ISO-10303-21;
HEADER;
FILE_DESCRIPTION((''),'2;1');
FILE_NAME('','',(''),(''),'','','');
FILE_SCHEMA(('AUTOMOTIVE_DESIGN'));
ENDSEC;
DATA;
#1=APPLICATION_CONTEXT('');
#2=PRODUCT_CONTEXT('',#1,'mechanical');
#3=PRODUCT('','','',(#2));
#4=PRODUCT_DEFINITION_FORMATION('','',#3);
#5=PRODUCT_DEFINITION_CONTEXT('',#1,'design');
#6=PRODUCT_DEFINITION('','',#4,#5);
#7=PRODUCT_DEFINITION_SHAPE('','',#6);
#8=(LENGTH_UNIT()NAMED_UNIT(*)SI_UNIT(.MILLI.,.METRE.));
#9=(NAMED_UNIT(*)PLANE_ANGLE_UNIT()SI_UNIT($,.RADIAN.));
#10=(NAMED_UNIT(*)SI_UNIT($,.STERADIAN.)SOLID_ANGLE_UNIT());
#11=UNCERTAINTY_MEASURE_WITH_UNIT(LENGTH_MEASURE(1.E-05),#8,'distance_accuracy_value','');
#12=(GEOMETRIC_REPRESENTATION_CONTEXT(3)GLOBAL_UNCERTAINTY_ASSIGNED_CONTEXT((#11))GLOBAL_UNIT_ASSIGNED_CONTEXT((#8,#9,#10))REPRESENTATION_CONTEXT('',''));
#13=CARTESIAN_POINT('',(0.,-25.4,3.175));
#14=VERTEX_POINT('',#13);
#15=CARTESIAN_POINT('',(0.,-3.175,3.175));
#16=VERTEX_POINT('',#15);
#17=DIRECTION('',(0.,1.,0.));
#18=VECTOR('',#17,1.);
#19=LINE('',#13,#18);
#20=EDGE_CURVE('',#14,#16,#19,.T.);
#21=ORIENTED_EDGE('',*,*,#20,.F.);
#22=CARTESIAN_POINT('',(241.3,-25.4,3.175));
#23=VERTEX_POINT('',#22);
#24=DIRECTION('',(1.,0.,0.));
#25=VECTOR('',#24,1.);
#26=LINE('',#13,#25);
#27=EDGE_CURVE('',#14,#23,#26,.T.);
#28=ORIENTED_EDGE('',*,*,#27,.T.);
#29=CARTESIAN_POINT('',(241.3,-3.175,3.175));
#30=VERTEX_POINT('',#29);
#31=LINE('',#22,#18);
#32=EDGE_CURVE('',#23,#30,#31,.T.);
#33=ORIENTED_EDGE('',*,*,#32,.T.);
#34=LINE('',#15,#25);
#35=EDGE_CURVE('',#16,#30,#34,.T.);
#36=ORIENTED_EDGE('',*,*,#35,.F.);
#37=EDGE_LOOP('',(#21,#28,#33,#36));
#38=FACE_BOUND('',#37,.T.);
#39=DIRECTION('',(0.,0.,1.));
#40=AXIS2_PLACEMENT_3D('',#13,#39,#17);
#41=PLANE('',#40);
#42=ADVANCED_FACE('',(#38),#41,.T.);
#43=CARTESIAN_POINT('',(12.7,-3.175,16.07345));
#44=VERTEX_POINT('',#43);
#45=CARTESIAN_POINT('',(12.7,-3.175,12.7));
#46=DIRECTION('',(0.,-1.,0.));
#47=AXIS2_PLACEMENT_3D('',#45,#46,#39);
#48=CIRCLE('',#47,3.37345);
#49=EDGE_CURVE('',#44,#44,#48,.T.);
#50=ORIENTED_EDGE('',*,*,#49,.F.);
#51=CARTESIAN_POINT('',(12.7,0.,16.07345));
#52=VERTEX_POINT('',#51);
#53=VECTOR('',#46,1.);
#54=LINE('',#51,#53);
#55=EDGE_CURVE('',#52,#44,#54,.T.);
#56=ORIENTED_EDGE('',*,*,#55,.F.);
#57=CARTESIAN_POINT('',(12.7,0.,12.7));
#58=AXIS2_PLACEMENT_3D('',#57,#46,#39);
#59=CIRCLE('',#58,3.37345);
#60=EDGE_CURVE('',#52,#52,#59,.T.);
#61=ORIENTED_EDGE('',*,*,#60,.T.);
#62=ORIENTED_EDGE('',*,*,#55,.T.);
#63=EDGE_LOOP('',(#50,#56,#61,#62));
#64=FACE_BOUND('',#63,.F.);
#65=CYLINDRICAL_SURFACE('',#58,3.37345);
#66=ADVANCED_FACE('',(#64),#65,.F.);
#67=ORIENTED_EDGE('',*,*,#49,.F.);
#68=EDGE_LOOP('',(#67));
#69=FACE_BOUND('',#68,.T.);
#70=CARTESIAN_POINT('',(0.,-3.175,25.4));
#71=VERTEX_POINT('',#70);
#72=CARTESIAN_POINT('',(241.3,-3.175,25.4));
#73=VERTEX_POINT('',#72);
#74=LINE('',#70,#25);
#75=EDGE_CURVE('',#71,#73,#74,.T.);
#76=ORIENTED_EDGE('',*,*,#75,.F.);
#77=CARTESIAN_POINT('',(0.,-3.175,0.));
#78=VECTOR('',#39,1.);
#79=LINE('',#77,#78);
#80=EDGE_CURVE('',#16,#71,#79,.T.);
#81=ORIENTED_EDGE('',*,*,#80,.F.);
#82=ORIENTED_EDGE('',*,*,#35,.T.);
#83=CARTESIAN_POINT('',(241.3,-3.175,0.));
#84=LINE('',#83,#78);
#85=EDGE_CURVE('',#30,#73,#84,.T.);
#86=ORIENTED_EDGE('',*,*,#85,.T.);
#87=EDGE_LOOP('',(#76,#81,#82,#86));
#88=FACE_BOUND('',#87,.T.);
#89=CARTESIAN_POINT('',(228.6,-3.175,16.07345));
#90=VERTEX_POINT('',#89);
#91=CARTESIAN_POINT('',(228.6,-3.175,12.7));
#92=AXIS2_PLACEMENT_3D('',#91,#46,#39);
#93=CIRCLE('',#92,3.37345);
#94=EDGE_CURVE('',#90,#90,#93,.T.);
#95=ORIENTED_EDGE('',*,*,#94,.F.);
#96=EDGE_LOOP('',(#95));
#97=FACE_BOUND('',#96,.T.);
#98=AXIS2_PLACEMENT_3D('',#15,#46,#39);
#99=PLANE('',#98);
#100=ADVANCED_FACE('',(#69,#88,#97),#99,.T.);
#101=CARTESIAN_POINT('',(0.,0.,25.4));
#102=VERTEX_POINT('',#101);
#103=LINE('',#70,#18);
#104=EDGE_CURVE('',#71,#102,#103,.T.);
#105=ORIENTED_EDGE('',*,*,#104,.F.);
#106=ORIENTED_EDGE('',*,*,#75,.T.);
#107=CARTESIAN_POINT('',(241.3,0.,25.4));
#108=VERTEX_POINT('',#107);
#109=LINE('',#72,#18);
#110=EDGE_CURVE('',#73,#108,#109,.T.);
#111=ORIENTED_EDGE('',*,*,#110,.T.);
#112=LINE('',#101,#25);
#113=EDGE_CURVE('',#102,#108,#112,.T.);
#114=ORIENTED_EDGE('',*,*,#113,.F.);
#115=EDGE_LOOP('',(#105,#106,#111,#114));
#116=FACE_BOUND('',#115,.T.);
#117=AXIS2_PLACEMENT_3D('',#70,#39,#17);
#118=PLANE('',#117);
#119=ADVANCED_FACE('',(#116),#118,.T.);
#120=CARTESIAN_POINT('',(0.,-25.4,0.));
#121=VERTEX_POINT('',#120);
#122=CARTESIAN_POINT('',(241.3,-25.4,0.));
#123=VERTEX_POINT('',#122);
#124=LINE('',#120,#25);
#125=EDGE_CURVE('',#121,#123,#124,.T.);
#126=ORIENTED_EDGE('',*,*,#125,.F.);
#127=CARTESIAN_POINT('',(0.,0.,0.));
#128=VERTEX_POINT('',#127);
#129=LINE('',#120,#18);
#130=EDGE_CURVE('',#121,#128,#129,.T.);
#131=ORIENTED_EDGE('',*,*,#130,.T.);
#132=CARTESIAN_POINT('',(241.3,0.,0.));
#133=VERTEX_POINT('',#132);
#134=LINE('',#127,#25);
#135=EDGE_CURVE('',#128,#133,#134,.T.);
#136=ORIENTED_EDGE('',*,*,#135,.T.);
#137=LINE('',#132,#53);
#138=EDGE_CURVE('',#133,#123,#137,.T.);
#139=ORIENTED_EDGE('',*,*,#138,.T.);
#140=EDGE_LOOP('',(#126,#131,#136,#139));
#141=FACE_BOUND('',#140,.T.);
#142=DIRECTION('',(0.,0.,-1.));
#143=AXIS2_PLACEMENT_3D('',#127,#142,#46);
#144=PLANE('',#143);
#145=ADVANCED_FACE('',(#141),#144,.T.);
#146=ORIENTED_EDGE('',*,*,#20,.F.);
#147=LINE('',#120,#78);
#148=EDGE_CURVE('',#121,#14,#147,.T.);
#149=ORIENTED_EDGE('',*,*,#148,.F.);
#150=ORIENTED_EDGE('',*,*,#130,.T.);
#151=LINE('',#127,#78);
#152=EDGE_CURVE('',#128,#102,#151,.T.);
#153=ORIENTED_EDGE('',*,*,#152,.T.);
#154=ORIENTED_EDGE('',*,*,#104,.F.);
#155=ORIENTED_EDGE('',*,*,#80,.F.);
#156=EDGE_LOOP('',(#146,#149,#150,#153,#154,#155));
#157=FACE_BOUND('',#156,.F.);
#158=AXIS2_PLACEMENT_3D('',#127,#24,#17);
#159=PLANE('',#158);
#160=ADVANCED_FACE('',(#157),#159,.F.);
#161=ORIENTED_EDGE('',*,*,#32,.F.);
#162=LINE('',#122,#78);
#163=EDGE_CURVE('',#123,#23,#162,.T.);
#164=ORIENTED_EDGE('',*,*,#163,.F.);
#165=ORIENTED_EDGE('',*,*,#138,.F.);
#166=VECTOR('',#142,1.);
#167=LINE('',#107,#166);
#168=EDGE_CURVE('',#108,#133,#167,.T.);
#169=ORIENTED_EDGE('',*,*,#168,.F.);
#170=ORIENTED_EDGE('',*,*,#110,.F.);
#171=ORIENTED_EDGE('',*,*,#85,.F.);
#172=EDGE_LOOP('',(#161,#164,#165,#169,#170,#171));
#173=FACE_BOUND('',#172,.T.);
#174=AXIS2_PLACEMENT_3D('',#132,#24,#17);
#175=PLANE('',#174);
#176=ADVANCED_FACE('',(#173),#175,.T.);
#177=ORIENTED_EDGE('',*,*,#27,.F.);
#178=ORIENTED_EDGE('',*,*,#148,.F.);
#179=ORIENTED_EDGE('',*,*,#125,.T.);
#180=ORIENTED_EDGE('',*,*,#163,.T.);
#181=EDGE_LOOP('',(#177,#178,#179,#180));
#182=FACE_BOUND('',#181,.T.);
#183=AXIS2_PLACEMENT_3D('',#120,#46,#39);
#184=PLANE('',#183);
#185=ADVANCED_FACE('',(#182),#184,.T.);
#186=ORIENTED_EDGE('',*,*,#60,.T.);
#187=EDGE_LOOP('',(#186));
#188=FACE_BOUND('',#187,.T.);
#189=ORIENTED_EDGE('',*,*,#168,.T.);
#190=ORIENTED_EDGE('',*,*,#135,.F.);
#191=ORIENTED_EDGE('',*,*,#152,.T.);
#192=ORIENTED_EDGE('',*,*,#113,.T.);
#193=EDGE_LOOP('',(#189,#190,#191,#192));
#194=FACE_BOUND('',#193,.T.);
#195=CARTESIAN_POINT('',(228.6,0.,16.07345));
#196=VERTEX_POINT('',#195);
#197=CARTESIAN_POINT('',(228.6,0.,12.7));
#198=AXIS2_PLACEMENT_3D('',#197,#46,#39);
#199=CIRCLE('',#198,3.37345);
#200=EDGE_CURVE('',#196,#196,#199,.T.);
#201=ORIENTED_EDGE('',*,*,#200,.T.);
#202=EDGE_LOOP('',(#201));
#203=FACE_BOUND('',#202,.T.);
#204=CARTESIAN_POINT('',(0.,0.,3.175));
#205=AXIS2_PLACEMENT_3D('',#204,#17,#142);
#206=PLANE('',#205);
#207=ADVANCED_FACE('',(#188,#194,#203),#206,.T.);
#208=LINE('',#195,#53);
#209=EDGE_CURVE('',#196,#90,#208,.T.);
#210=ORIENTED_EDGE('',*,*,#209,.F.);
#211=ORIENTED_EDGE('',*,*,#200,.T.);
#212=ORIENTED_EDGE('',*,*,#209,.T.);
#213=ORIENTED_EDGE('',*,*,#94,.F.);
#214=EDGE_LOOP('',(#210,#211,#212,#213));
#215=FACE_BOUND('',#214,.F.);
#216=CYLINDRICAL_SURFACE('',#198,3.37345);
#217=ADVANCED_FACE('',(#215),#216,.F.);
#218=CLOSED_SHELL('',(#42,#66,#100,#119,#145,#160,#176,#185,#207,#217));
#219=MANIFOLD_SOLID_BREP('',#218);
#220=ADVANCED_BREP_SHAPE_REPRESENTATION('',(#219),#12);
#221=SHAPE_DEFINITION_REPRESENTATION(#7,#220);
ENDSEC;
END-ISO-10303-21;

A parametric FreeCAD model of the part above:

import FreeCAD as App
import Part
import Sketcher
from FreeCAD import Vector
Q = App.Units.Quantity

doc = App.newDocument("Part")
body = doc.addObject("PartDesign::Body", "Body")

sketch1 = body.newObject("Sketcher::SketchObject", "Sketch")
sketch1.AttachmentSupport = (doc.getObject("YZ_Plane"), [""])
sketch1.MapMode = "FlatFace"
sketch1.addGeometry(Part.LineSegment(Vector(0, 0, 0), Vector(0, 25.4, 0)), False)
sketch1.addGeometry(Part.LineSegment(Vector(0, 25.4, 0), Vector(-3.175, 25.4, 0)), False)
sketch1.addGeometry(Part.LineSegment(Vector(-3.175, 25.4, 0), Vector(-3.175, 3.175, 0)), False)
sketch1.addGeometry(Part.LineSegment(Vector(-3.175, 3.175, 0), Vector(-25.4, 3.175, 0)), False)
sketch1.addGeometry(Part.LineSegment(Vector(-25.4, 3.175, 0), Vector(-25.4, 0, 0)), False)
sketch1.addGeometry(Part.LineSegment(Vector(-25.4, 0, 0), Vector(0, 0, 0)), False)
sketch1.addConstraint(Sketcher.Constraint("Coincident", 0, 2, 1, 1))
sketch1.addConstraint(Sketcher.Constraint("Coincident", 1, 2, 2, 1))
sketch1.addConstraint(Sketcher.Constraint("Coincident", 2, 2, 3, 1))
sketch1.addConstraint(Sketcher.Constraint("Coincident", 3, 2, 4, 1))
sketch1.addConstraint(Sketcher.Constraint("Coincident", 4, 2, 5, 1))
sketch1.addConstraint(Sketcher.Constraint("Coincident", 5, 2, 0, 1))
sketch1.addConstraint(Sketcher.Constraint("Vertical", 0))
sketch1.addConstraint(Sketcher.Constraint("Horizontal", 1))
sketch1.addConstraint(Sketcher.Constraint("Vertical", 2))
sketch1.addConstraint(Sketcher.Constraint("Horizontal", 3))
sketch1.addConstraint(Sketcher.Constraint("Vertical", 4))
sketch1.addConstraint(Sketcher.Constraint("Horizontal", 5))
sketch1.addConstraint(Sketcher.Constraint("Coincident", 5, 2, -1, 1))
sketch1.addConstraint(Sketcher.Constraint("Equal", 5, 0))
sketch1.addConstraint(Sketcher.Constraint("Equal", 3, 2))
sketch1.addConstraint(Sketcher.Constraint("DistanceX", 5, 1, 5, 2, Q("1 in")))
sketch1.addConstraint(Sketcher.Constraint("DistanceX", 1, 2, 1, 1, Q("0.125 in")))
pad1 = body.newObject("PartDesign::Pad", "Pad")
pad1.Profile = sketch1
pad1.Length = Q("9.5 in")

sketch2 = body.newObject("Sketcher::SketchObject", "Sketch001")
sketch2.AttachmentSupport = (doc.getObject("XZ_Plane"), [""])
sketch2.MapMode = "FlatFace"
sketch2.addGeometry(Part.Circle(Vector(228.6, 12.7, 0), Vector(0, 0, 1), 3.37345), False)
sketch2.addGeometry(Part.Circle(Vector(12.7, 12.7, 0), Vector(0, 0, 1), 3.37345), False)
sketch2.addConstraint(Sketcher.Constraint("Equal", 0, 1))
sketch2.addConstraint(Sketcher.Constraint("Horizontal", 0, 3, 1, 3))
sketch2.addConstraint(Sketcher.Constraint("Diameter", 0, Q("0.2656299 in")))
sketch2.addConstraint(Sketcher.Constraint("DistanceX", -1, 1, 0, 3, Q("9 in")))
sketch2.addConstraint(Sketcher.Constraint("DistanceY", -1, 1, 0, 3, Q("0.5 in")))
sketch2.addConstraint(Sketcher.Constraint("DistanceX", -1, 1, 1, 3, Q("0.5 in")))
doc.recompute()
hole = body.newObject("PartDesign::Hole", "Hole")
hole.Profile = sketch2
hole.ThreadType = "None"
hole.Diameter = Q("0.265626 in")
hole.DepthType = "ThroughAll"
hole.Reversed = True

doc.recompute()
